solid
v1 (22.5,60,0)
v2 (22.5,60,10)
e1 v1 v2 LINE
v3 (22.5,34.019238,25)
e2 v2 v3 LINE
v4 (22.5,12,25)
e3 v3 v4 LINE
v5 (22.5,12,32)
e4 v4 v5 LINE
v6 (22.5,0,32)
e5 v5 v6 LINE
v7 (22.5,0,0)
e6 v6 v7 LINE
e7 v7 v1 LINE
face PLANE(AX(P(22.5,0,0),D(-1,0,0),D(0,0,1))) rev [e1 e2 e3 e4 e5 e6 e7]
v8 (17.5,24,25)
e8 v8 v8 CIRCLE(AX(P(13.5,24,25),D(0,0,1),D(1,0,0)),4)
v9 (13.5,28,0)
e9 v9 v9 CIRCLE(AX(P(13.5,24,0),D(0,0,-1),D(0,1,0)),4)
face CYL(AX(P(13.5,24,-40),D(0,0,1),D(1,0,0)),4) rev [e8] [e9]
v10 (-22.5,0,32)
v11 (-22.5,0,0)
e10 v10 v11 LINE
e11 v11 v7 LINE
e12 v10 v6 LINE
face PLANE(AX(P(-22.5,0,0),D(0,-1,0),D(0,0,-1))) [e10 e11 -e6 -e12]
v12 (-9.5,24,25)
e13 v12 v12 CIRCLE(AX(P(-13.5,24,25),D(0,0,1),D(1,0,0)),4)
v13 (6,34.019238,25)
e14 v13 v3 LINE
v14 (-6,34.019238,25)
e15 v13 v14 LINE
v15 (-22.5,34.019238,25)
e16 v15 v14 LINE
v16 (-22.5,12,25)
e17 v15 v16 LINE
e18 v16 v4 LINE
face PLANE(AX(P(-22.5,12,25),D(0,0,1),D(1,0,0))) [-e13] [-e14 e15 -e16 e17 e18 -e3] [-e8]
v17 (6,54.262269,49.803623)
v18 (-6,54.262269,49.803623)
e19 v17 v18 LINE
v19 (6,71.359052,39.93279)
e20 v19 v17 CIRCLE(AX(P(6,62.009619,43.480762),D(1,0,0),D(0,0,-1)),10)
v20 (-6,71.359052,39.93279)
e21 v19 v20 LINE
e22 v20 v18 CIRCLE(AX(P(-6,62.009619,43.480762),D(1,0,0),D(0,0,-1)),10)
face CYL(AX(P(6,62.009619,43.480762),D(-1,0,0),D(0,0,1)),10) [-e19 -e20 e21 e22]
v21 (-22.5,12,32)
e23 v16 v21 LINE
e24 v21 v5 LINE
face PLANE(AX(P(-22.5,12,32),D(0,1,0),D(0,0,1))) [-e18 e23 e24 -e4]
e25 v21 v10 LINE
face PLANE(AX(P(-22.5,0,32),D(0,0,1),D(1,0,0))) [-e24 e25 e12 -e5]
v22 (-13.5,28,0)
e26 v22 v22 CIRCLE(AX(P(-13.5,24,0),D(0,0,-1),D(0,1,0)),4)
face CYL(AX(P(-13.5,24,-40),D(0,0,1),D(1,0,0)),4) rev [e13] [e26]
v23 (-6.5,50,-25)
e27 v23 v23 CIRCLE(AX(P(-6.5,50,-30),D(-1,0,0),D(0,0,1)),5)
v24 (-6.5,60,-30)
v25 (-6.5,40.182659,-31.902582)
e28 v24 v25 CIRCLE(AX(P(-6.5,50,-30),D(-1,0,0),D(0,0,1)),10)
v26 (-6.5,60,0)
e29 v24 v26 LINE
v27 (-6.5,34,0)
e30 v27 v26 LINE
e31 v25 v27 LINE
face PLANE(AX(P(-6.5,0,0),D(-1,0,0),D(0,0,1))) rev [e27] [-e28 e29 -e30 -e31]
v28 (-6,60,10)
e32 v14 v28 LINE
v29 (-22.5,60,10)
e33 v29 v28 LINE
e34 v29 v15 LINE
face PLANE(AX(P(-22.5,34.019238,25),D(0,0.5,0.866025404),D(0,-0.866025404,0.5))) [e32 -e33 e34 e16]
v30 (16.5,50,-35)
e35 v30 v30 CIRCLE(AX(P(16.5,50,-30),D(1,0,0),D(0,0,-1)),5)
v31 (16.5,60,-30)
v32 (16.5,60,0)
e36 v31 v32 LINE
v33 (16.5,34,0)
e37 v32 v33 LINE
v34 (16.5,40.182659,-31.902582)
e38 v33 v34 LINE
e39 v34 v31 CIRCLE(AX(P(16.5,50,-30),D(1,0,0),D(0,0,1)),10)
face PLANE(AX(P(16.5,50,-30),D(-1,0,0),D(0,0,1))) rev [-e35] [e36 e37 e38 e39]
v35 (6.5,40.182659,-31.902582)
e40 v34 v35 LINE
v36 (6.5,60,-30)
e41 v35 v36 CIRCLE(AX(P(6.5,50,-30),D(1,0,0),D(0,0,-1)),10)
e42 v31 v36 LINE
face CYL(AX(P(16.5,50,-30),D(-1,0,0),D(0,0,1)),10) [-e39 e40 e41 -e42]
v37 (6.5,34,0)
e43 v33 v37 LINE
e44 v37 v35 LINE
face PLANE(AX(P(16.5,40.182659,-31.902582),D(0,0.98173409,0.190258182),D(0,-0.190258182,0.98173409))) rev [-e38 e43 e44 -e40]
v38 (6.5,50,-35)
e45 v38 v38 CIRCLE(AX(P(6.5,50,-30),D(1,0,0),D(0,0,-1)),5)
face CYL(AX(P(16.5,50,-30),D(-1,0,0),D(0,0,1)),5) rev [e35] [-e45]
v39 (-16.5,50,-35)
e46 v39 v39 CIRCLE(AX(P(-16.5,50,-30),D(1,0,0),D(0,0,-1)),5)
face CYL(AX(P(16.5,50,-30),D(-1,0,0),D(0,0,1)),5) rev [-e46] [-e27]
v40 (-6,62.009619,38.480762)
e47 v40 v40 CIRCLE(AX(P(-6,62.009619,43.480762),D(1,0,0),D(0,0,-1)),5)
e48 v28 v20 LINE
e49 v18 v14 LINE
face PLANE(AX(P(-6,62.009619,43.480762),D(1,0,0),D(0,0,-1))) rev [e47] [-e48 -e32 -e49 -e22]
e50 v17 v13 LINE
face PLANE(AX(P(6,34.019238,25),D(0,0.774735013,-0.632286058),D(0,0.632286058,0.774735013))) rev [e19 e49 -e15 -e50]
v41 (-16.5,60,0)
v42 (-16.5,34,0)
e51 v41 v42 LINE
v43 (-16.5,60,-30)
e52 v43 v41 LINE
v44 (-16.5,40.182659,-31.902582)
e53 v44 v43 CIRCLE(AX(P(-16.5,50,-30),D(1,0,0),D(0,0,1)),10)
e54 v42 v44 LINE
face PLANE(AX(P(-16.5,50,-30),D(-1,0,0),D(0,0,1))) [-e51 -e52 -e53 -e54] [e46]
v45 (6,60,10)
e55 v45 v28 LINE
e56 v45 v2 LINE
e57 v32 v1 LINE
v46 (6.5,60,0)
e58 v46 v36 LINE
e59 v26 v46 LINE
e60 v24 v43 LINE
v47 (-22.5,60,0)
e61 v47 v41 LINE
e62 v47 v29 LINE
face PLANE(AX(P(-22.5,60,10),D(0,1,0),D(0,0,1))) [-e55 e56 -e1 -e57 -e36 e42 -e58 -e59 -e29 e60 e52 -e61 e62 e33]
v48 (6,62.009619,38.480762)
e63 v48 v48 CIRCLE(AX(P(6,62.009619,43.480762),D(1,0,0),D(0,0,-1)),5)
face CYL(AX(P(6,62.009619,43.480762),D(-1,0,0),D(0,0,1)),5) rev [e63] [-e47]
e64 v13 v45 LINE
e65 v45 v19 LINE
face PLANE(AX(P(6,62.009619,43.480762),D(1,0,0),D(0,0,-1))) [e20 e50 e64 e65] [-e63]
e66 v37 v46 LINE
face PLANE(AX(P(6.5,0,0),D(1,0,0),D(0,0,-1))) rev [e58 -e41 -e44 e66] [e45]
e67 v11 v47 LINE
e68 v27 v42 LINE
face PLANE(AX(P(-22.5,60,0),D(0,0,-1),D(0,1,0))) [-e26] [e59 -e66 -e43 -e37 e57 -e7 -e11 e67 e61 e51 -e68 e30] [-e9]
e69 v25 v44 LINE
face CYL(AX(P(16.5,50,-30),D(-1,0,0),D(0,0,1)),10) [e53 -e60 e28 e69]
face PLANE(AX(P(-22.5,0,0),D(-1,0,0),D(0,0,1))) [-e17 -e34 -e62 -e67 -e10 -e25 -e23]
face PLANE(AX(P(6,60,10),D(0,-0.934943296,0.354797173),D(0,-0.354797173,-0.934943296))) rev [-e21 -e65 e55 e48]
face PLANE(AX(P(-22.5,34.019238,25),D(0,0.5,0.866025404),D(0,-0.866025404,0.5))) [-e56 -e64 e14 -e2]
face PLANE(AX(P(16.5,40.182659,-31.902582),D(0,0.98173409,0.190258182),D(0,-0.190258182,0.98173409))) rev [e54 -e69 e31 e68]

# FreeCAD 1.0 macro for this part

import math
import FreeCAD as App
import Part
import Sketcher
Q = App.Units.Quantity

doc = App.newDocument("Part")
body = doc.addObject("PartDesign::Body", "Body")

# Sketch on YZ plane
sketch1 = doc.addObject("Sketcher::SketchObject", "Sketch")
body.addObject(sketch1)
sketch1.AttachmentSupport = (doc.YZ_Plane, [""])
sketch1.MapMode = "FlatFace"
sketch1.addGeometry([
    Part.LineSegment(App.Vector(0, 0, 0), App.Vector(60, 0, 0)),  # 0
    Part.LineSegment(App.Vector(60, 0, 0), App.Vector(60, 10, 0)),  # 1
    Part.LineSegment(App.Vector(60, 10, 0), App.Vector(34.019238, 25, 0)),  # 2
    Part.LineSegment(App.Vector(34.019238, 25, 0), App.Vector(12, 25, 0)),  # 3
    Part.LineSegment(App.Vector(12, 25, 0), App.Vector(12, 32, 0)),  # 4
    Part.LineSegment(App.Vector(12, 32, 0), App.Vector(0, 32, 0)),  # 5
    Part.LineSegment(App.Vector(0, 32, 0), App.Vector(0, 0, 0)),  # 6
], False)
sketch1.addConstraint([
    Sketcher.Constraint("Coincident", 0, 2, 1, 1),
    Sketcher.Constraint("Coincident", 1, 2, 2, 1),
    Sketcher.Constraint("Coincident", 2, 2, 3, 1),
    Sketcher.Constraint("Coincident", 3, 2, 4, 1),
    Sketcher.Constraint("Coincident", 4, 2, 5, 1),
    Sketcher.Constraint("Coincident", 5, 2, 6, 1),
    Sketcher.Constraint("Coincident", 6, 2, 0, 1),
    Sketcher.Constraint("Horizontal", 0),
    Sketcher.Constraint("Vertical", 1),
    Sketcher.Constraint("Horizontal", 3),
    Sketcher.Constraint("Vertical", 4),
    Sketcher.Constraint("Horizontal", 5),
    Sketcher.Constraint("Vertical", 6),
    Sketcher.Constraint("Coincident", 6, 2, -1, 1),
    Sketcher.Constraint("DistanceX", 0, 1, 0, 2, 60.0),
    Sketcher.Constraint("DistanceX", 5, 2, 5, 1, 12.0),
    Sketcher.Constraint("DistanceY", 1, 1, 1, 2, 10.0),
    Sketcher.Constraint("DistanceY", 4, 1, 4, 2, 7.0),
    Sketcher.Constraint("DistanceY", 6, 2, 6, 1, 32.0),
    Sketcher.Constraint("Angle", 2, Q("150 deg")),
])
pad1 = doc.addObject("PartDesign::Pad", "Pad")
body.addObject(pad1)
pad1.Profile = sketch1
pad1.Length = 45
pad1.Midplane = True

# Sketch on YZ plane
sketch2 = doc.addObject("Sketcher::SketchObject", "Sketch001")
body.addObject(sketch2)
sketch2.AttachmentSupport = (doc.YZ_Plane, [""])
sketch2.MapMode = "FlatFace"
sketch2.addGeometry([
    Part.LineSegment(App.Vector(60, -30, 0), App.Vector(60, 0, 0)),  # 0
    Part.LineSegment(App.Vector(60, 0, 0), App.Vector(34, 0, 0)),  # 1
    Part.LineSegment(App.Vector(34, 0, 0), App.Vector(40.182659, -31.902582, 0)),  # 2
    Part.ArcOfCircle(Part.Circle(App.Vector(50, -30, 0), App.Vector(0, 0, 1), 10), math.radians(-169.032148), math.radians(0)),  # 3
    Part.Circle(App.Vector(50, -30, 0), App.Vector(0, 0, 1), 5),  # 4
], False)
sketch2.addConstraint([
    Sketcher.Constraint("Coincident", 0, 2, 1, 1),
    Sketcher.Constraint("Coincident", 1, 2, 2, 1),
    Sketcher.Constraint("Tangent", 2, 2, 3, 1),
    Sketcher.Constraint("Tangent", 3, 2, 0, 1),
    Sketcher.Constraint("Vertical", 0),
    Sketcher.Constraint("Horizontal", 1),
    Sketcher.Constraint("Coincident", 4, 3, 3, 3),
    Sketcher.Constraint("PointOnObject", 0, 2, -1),
    Sketcher.Constraint("Diameter", 4, 10.0),
    Sketcher.Constraint("Radius", 3, 10.0),
    Sketcher.Constraint("DistanceX", 1, 2, 1, 1, 26.0),
    Sketcher.Constraint("DistanceY", 0, 1, 0, 2, 30.0),
    Sketcher.Constraint("DistanceX", -1, 1, 3, 3, 50.0),
])
pad2 = doc.addObject("PartDesign::Pad", "Pad001")
body.addObject(pad2)
pad2.Profile = sketch2
pad2.Length = 33
pad2.Midplane = True

# Sketch on XZ plane
sketch3 = doc.addObject("Sketcher::SketchObject", "Sketch002")
body.addObject(sketch3)
sketch3.AttachmentSupport = (doc.XZ_Plane, [""])
sketch3.MapMode = "FlatFace"
sketch3.AttachmentOffset = App.Placement(App.Vector(0, 0, -60), App.Rotation())
sketch3.addGeometry([
    Part.LineSegment(App.Vector(-6.5, -52.478254, 0), App.Vector(-6.5, 0, 0)),
    Part.LineSegment(App.Vector(-6.5, 0, 0), App.Vector(6.5, 0, 0)),
    Part.LineSegment(App.Vector(6.5, 0, 0), App.Vector(6.5, -52.478254, 0)),
    Part.LineSegment(App.Vector(6.5, -52.478254, 0), App.Vector(-6.5, -52.478254, 0)),
], False)
sketch3.addConstraint([
    Sketcher.Constraint("Coincident", 0, 2, 1, 1),
    Sketcher.Constraint("Coincident", 1, 2, 2, 1),
    Sketcher.Constraint("Coincident", 2, 2, 3, 1),
    Sketcher.Constraint("Coincident", 3, 2, 0, 1),
    Sketcher.Constraint("Vertical", 0),
    Sketcher.Constraint("Horizontal", 1),
    Sketcher.Constraint("Vertical", 2),
    Sketcher.Constraint("Horizontal", 3),
    Sketcher.Constraint("Symmetric", 0, 2, 1, 2, -1, 1),
    Sketcher.Constraint("DistanceX", 1, 1, 1, 2, 13.0),
    Sketcher.Constraint("DistanceY", 0, 1, 0, 2, 52.478254),
])
pocket1 = doc.addObject("PartDesign::Pocket", "Pocket")
body.addObject(pocket1)
pocket1.Profile = sketch3
pocket1.Type = "ThroughAll"
pocket1.Reversed = True

# Sketch on YZ plane
sketch4 = doc.addObject("Sketcher::SketchObject", "Sketch003")
body.addObject(sketch4)
sketch4.AttachmentSupport = (doc.YZ_Plane, [""])
sketch4.MapMode = "FlatFace"
sketch4.addGeometry([
    Part.LineSegment(App.Vector(60, 10, 0), App.Vector(71.359052, 39.93279, 0)),  # 0
    Part.ArcOfCircle(Part.Circle(App.Vector(62.009619, 43.480762, 0), App.Vector(0, 0, 1), 10), math.radians(-20.781014), math.radians(140.781014)),  # 1
    Part.LineSegment(App.Vector(54.262269, 49.803623, 0), App.Vector(34.019238, 25, 0)),  # 2
    Part.LineSegment(App.Vector(34.019238, 25, 0), App.Vector(60, 10, 0)),  # 3
    Part.Circle(App.Vector(62.009619, 43.480762, 0), App.Vector(0, 0, 1), 5),  # 4
], False)
sketch4.addConstraint([
    Sketcher.Constraint("Tangent", 0, 2, 1, 1),
    Sketcher.Constraint("Tangent", 1, 2, 2, 1),
    Sketcher.Constraint("Coincident", 2, 2, 3, 1),
    Sketcher.Constraint("Coincident", 3, 2, 0, 1),
    Sketcher.Constraint("Coincident", 4, 3, 1, 3),
    Sketcher.Constraint("Equal", 0, 2),
    Sketcher.Constraint("Diameter", 4, 10.0),
    Sketcher.Constraint("Radius", 1, 10.0),
    Sketcher.Constraint("Angle", 3, Q("-30 deg")),
    Sketcher.Constraint("Distance", 3, 30.0),
    Sketcher.Constraint("DistanceY", -1, 1, 2, 2, 25.0),
    Sketcher.Constraint("DistanceX", -1, 1, 3, 2, 60.0),
    Sketcher.Constraint("Distance", 0, 32.015621),
])
pad3 = doc.addObject("PartDesign::Pad", "Pad002")
body.addObject(pad3)
pad3.Profile = sketch4
pad3.Length = 12
pad3.Midplane = True

# Sketch on XY plane
sketch5 = doc.addObject("Sketcher::SketchObject", "Sketch004")
body.addObject(sketch5)
sketch5.AttachmentSupport = (doc.XY_Plane, [""])
sketch5.MapMode = "FlatFace"
sketch5.AttachmentOffset = App.Placement(App.Vector(0, 0, 25), App.Rotation())
sketch5.addGeometry([
    Part.Circle(App.Vector(-13.5, 24, 0), App.Vector(0, 0, 1), 4),
    Part.Circle(App.Vector(13.5, 24, 0), App.Vector(0, 0, 1), 4),
], False)
sketch5.addConstraint([
    Sketcher.Constraint("Equal", 0, 1),
    Sketcher.Constraint("Symmetric", 0, 3, 1, 3, -2),
    Sketcher.Constraint("Diameter", 0, 8.0),
    Sketcher.Constraint("DistanceY", -1, 1, 0, 3, 24.0),
    Sketcher.Constraint("DistanceX", 0, 3, 1, 3, 27.0),
])
pocket2 = doc.addObject("PartDesign::Pocket", "Pocket001")
body.addObject(pocket2)
pocket2.Profile = sketch5
pocket2.Type = "ThroughAll"

doc.recompute()
